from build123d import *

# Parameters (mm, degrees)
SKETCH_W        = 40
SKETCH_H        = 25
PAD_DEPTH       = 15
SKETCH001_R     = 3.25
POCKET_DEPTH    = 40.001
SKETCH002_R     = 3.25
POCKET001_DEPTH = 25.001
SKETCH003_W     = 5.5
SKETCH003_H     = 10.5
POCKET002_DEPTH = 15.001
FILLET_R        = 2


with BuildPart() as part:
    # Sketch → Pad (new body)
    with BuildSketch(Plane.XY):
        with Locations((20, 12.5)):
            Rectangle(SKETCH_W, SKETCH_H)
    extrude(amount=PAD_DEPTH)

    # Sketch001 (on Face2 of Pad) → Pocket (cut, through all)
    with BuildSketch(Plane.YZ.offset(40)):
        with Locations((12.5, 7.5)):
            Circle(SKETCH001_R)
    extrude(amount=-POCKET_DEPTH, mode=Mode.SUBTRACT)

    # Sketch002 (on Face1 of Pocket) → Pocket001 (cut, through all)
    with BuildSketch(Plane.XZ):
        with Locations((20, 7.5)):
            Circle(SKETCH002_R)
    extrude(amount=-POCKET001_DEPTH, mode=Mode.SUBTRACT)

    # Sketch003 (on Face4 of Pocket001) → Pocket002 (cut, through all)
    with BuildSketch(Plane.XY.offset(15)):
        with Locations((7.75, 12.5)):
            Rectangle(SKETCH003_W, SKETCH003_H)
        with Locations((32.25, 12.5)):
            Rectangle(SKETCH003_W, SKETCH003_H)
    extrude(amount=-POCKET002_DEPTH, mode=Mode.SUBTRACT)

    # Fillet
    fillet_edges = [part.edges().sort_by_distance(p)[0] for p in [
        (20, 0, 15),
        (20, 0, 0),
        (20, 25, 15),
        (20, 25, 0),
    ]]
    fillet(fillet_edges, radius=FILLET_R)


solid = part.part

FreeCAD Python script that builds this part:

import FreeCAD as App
import Part
import Sketcher

V = App.Vector


def edges_at(feature, points):
    """Names of the edges that pass closest to the given points."""
    edges = feature.Shape.Edges
    near = lambda p: min(range(len(edges)), key=lambda i: edges[i].distToShape(Part.Vertex(*p))[0])
    return sorted({f"Edge{near(p) + 1}" for p in points})

doc = App.newDocument("Part")
body = doc.addObject("PartDesign::Body", "Body")

# Sketch on XY plane
sketch1 = body.newObject("Sketcher::SketchObject", "Sketch")
sketch1.AttachmentSupport = (doc.getObject("XY_Plane"), [""])
sketch1.MapMode = "FlatFace"
sketch1.addGeometry(Part.LineSegment(V(0, 25, 0), V(0, 0, 0)), False)
sketch1.addGeometry(Part.LineSegment(V(0, 0, 0), V(40, 0, 0)), False)
sketch1.addGeometry(Part.LineSegment(V(40, 0, 0), V(40, 25, 0)), False)
sketch1.addGeometry(Part.LineSegment(V(40, 25, 0), V(0, 25, 0)), False)
sketch1.addConstraint(Sketcher.Constraint("Coincident", 0, 2, 1, 1))
sketch1.addConstraint(Sketcher.Constraint("Coincident", 1, 2, 2, 1))
sketch1.addConstraint(Sketcher.Constraint("Coincident", 2, 2, 3, 1))
sketch1.addConstraint(Sketcher.Constraint("Coincident", 3, 2, 0, 1))
sketch1.addConstraint(Sketcher.Constraint("Vertical", 0))
sketch1.addConstraint(Sketcher.Constraint("Horizontal", 1))
sketch1.addConstraint(Sketcher.Constraint("Vertical", 2))
sketch1.addConstraint(Sketcher.Constraint("Horizontal", 3))
sketch1.addConstraint(Sketcher.Constraint("Coincident", 0, 2, -1, 1))
sketch1.addConstraint(Sketcher.Constraint("DistanceX", 1, 1, 1, 2, 40.0))
sketch1.addConstraint(Sketcher.Constraint("DistanceY", 0, 2, 0, 1, 25.0))
pad1 = body.newObject("PartDesign::Pad", "Pad")
pad1.Profile = sketch1
pad1.Length = 15

# Sketch on YZ plane
sketch2 = body.newObject("Sketcher::SketchObject", "Sketch001")
sketch2.AttachmentSupport = (doc.getObject("YZ_Plane"), [""])
sketch2.MapMode = "FlatFace"
sketch2.AttachmentOffset = App.Placement(V(0, 0, 40), App.Rotation())
sketch2.addGeometry(Part.Circle(V(12.5, 7.5, 0), V(0, 0, 1), 3.25), False)
sketch2.addConstraint(Sketcher.Constraint("Diameter", 0, 6.5))
sketch2.addConstraint(Sketcher.Constraint("DistanceX", -1, 1, 0, 3, 12.5))
sketch2.addConstraint(Sketcher.Constraint("DistanceY", -1, 1, 0, 3, 7.5))
pocket1 = body.newObject("PartDesign::Pocket", "Pocket")
pocket1.Profile = sketch2
pocket1.Type = "ThroughAll"

# Sketch on XZ plane
sketch3 = body.newObject("Sketcher::SketchObject", "Sketch002")
sketch3.AttachmentSupport = (doc.getObject("XZ_Plane"), [""])
sketch3.MapMode = "FlatFace"
sketch3.addGeometry(Part.Circle(V(20, 7.5, 0), V(0, 0, 1), 3.25), False)
sketch3.addConstraint(Sketcher.Constraint("Diameter", 0, 6.5))
sketch3.addConstraint(Sketcher.Constraint("DistanceX", -1, 1, 0, 3, 20.0))
sketch3.addConstraint(Sketcher.Constraint("DistanceY", -1, 1, 0, 3, 7.5))
pocket2 = body.newObject("PartDesign::Pocket", "Pocket001")
pocket2.Profile = sketch3
pocket2.Type = "ThroughAll"

# Sketch on XY plane
sketch4 = body.newObject("Sketcher::SketchObject", "Sketch003")
sketch4.AttachmentSupport = (doc.getObject("XY_Plane"), [""])
sketch4.MapMode = "FlatFace"
sketch4.AttachmentOffset = App.Placement(V(0, 0, 15), App.Rotation())
sketch4.addGeometry(Part.LineSegment(V(5, 17.75, 0), V(5, 7.25, 0)), False)
sketch4.addGeometry(Part.LineSegment(V(5, 7.25, 0), V(10.5, 7.25, 0)), False)
sketch4.addGeometry(Part.LineSegment(V(10.5, 7.25, 0), V(10.5, 17.75, 0)), False)
sketch4.addGeometry(Part.LineSegment(V(10.5, 17.75, 0), V(5, 17.75, 0)), False)
sketch4.addGeometry(Part.LineSegment(V(29.5, 17.75, 0), V(29.5, 7.25, 0)), False)
sketch4.addGeometry(Part.LineSegment(V(29.5, 7.25, 0), V(35, 7.25, 0)), False)
sketch4.addGeometry(Part.LineSegment(V(35, 7.25, 0), V(35, 17.75, 0)), False)
sketch4.addGeometry(Part.LineSegment(V(35, 17.75, 0), V(29.5, 17.75, 0)), False)
sketch4.addConstraint(Sketcher.Constraint("Coincident", 0, 2, 1, 1))
sketch4.addConstraint(Sketcher.Constraint("Coincident", 1, 2, 2, 1))
sketch4.addConstraint(Sketcher.Constraint("Coincident", 2, 2, 3, 1))
sketch4.addConstraint(Sketcher.Constraint("Coincident", 3, 2, 0, 1))
sketch4.addConstraint(Sketcher.Constraint("Coincident", 4, 2, 5, 1))
sketch4.addConstraint(Sketcher.Constraint("Coincident", 5, 2, 6, 1))
sketch4.addConstraint(Sketcher.Constraint("Coincident", 6, 2, 7, 1))
sketch4.addConstraint(Sketcher.Constraint("Coincident", 7, 2, 4, 1))
sketch4.addConstraint(Sketcher.Constraint("Vertical", 0))
sketch4.addConstraint(Sketcher.Constraint("Horizontal", 1))
sketch4.addConstraint(Sketcher.Constraint("Vertical", 2))
sketch4.addConstraint(Sketcher.Constraint("Horizontal", 3))
sketch4.addConstraint(Sketcher.Constraint("Vertical", 4))
sketch4.addConstraint(Sketcher.Constraint("Horizontal", 5))
sketch4.addConstraint(Sketcher.Constraint("Vertical", 6))
sketch4.addConstraint(Sketcher.Constraint("Horizontal", 7))
sketch4.addConstraint(Sketcher.Constraint("Horizontal", 1, 2, 4, 2))
sketch4.addConstraint(Sketcher.Constraint("Horizontal", 3, 2, 6, 2))
sketch4.addConstraint(Sketcher.Constraint("Equal", 3, 5))
sketch4.addConstraint(Sketcher.Constraint("DistanceX", 1, 1, 1, 2, 5.5))
sketch4.addConstraint(Sketcher.Constraint("DistanceY", 0, 2, 0, 1, 10.5))
sketch4.addConstraint(Sketcher.Constraint("DistanceX", -1, 1, 0, 2, 5.0))
sketch4.addConstraint(Sketcher.Constraint("DistanceX", -1, 1, 5, 2, 35.0))
sketch4.addConstraint(Sketcher.Constraint("DistanceY", -1, 1, 0, 2, 7.25))
pocket3 = body.newObject("PartDesign::Pocket", "Pocket002")
pocket3.Profile = sketch4
pocket3.Type = "ThroughAll"
doc.recompute()

fillet = body.newObject("PartDesign::Fillet", "Fillet")
fillet.Base = (pocket3, edges_at(pocket3, [
    (20, 0, 15),
    (20, 0, 0),
    (20, 25, 15),
    (20, 25, 0),
]))
fillet.Radius = 2

doc.recompute()
